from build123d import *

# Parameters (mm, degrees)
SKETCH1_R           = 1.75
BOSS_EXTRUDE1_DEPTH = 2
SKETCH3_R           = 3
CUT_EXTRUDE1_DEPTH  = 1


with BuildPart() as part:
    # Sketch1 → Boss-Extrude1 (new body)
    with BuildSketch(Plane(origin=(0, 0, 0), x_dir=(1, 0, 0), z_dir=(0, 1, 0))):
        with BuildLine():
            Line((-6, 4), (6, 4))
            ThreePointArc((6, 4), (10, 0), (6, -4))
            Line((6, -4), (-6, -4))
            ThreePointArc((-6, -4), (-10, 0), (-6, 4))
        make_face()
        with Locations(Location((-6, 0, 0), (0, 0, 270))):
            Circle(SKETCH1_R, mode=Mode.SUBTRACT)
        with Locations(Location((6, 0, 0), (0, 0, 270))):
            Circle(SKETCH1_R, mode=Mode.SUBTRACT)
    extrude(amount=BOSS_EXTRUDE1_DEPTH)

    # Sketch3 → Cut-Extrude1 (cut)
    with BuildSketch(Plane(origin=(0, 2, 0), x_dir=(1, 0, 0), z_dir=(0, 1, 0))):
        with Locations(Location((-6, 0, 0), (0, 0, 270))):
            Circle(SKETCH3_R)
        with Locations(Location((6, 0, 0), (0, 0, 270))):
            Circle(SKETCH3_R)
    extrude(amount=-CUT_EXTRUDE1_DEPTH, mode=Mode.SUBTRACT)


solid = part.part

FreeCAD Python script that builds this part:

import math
import FreeCAD as App
import Part
import Sketcher
from FreeCAD import Vector
Q = App.Units.Quantity

doc = App.newDocument("Part")
body = doc.addObject("PartDesign::Body", "Body")

sketch1 = doc.addObject("Sketcher::SketchObject", "Sketch")
body.addObject(sketch1)
sketch1.AttachmentSupport = (doc.XZ_Plane, [""])
sketch1.MapMode = "FlatFace"
sketch1.addGeometry([
    Part.LineSegment(Vector(6, -4, 0), Vector(-6, -4, 0)),
    Part.ArcOfCircle(Part.Circle(Vector(-6, 0, 0), Vector(0, 0, 1), 4), math.radians(90), math.radians(270)),
    Part.LineSegment(Vector(-6, 4, 0), Vector(6, 4, 0)),
    Part.ArcOfCircle(Part.Circle(Vector(6, 0, 0), Vector(0, 0, 1), 4), math.radians(-90), math.radians(90)),
    Part.Circle(Vector(6, 0, 0), Vector(0, 0, 1), 1.8),
    Part.Circle(Vector(-6, 0, 0), Vector(0, 0, 1), 1.8),
], False)
sketch1.addConstraint([
    Sketcher.Constraint("Tangent", 0, 2, 1, 2),
    Sketcher.Constraint("Tangent", 1, 1, 2, 1),
    Sketcher.Constraint("Tangent", 2, 2, 3, 2),
    Sketcher.Constraint("Tangent", 3, 1, 0, 1),
    Sketcher.Constraint("Horizontal", 0),
    Sketcher.Constraint("Horizontal", 2),
    Sketcher.Constraint("Coincident", 4, 3, 3, 3),
    Sketcher.Constraint("Coincident", 5, 3, 1, 3),
    Sketcher.Constraint("Equal", 4, 5),
    Sketcher.Constraint("Symmetric", 1, 3, 3, 3, -1, 1),
    Sketcher.Constraint("Radius", 1, Q("4 mm")),
    Sketcher.Constraint("Diameter", 4, Q("3.5 mm")),
    Sketcher.Constraint("DistanceX", 0, 2, 0, 1, Q("12 mm")),
])
pad1 = doc.addObject("PartDesign::Pad", "Pad")
body.addObject(pad1)
pad1.Profile = sketch1
pad1.Length = 2
pad1.Reversed = True

sketch2 = doc.addObject("Sketcher::SketchObject", "Sketch001")
body.addObject(sketch2)
sketch2.AttachmentSupport = (doc.XZ_Plane, [""])
sketch2.MapMode = "FlatFace"
sketch2.AttachmentOffset = App.Placement(Vector(0, 0, -2), App.Rotation())
sketch2.addGeometry([
    Part.Circle(Vector(-6, 0, 0), Vector(0, 0, 1), 3),
    Part.Circle(Vector(6, 0, 0), Vector(0, 0, 1), 3),
], False)
sketch2.addConstraint([
    Sketcher.Constraint("Equal", 0, 1),
    Sketcher.Constraint("Symmetric", 0, 3, 1, 3, -1, 1),
    Sketcher.Constraint("PointOnObject", 0, 3, -1),
    Sketcher.Constraint("Diameter", 0, Q("6 mm")),
    Sketcher.Constraint("DistanceX", 0, 3, -1, 1, Q("6 mm")),
])
pocket1 = doc.addObject("PartDesign::Pocket", "Pocket")
body.addObject(pocket1)
pocket1.Profile = sketch2
pocket1.Length = 1
pocket1.Reversed = True

doc.recompute()
